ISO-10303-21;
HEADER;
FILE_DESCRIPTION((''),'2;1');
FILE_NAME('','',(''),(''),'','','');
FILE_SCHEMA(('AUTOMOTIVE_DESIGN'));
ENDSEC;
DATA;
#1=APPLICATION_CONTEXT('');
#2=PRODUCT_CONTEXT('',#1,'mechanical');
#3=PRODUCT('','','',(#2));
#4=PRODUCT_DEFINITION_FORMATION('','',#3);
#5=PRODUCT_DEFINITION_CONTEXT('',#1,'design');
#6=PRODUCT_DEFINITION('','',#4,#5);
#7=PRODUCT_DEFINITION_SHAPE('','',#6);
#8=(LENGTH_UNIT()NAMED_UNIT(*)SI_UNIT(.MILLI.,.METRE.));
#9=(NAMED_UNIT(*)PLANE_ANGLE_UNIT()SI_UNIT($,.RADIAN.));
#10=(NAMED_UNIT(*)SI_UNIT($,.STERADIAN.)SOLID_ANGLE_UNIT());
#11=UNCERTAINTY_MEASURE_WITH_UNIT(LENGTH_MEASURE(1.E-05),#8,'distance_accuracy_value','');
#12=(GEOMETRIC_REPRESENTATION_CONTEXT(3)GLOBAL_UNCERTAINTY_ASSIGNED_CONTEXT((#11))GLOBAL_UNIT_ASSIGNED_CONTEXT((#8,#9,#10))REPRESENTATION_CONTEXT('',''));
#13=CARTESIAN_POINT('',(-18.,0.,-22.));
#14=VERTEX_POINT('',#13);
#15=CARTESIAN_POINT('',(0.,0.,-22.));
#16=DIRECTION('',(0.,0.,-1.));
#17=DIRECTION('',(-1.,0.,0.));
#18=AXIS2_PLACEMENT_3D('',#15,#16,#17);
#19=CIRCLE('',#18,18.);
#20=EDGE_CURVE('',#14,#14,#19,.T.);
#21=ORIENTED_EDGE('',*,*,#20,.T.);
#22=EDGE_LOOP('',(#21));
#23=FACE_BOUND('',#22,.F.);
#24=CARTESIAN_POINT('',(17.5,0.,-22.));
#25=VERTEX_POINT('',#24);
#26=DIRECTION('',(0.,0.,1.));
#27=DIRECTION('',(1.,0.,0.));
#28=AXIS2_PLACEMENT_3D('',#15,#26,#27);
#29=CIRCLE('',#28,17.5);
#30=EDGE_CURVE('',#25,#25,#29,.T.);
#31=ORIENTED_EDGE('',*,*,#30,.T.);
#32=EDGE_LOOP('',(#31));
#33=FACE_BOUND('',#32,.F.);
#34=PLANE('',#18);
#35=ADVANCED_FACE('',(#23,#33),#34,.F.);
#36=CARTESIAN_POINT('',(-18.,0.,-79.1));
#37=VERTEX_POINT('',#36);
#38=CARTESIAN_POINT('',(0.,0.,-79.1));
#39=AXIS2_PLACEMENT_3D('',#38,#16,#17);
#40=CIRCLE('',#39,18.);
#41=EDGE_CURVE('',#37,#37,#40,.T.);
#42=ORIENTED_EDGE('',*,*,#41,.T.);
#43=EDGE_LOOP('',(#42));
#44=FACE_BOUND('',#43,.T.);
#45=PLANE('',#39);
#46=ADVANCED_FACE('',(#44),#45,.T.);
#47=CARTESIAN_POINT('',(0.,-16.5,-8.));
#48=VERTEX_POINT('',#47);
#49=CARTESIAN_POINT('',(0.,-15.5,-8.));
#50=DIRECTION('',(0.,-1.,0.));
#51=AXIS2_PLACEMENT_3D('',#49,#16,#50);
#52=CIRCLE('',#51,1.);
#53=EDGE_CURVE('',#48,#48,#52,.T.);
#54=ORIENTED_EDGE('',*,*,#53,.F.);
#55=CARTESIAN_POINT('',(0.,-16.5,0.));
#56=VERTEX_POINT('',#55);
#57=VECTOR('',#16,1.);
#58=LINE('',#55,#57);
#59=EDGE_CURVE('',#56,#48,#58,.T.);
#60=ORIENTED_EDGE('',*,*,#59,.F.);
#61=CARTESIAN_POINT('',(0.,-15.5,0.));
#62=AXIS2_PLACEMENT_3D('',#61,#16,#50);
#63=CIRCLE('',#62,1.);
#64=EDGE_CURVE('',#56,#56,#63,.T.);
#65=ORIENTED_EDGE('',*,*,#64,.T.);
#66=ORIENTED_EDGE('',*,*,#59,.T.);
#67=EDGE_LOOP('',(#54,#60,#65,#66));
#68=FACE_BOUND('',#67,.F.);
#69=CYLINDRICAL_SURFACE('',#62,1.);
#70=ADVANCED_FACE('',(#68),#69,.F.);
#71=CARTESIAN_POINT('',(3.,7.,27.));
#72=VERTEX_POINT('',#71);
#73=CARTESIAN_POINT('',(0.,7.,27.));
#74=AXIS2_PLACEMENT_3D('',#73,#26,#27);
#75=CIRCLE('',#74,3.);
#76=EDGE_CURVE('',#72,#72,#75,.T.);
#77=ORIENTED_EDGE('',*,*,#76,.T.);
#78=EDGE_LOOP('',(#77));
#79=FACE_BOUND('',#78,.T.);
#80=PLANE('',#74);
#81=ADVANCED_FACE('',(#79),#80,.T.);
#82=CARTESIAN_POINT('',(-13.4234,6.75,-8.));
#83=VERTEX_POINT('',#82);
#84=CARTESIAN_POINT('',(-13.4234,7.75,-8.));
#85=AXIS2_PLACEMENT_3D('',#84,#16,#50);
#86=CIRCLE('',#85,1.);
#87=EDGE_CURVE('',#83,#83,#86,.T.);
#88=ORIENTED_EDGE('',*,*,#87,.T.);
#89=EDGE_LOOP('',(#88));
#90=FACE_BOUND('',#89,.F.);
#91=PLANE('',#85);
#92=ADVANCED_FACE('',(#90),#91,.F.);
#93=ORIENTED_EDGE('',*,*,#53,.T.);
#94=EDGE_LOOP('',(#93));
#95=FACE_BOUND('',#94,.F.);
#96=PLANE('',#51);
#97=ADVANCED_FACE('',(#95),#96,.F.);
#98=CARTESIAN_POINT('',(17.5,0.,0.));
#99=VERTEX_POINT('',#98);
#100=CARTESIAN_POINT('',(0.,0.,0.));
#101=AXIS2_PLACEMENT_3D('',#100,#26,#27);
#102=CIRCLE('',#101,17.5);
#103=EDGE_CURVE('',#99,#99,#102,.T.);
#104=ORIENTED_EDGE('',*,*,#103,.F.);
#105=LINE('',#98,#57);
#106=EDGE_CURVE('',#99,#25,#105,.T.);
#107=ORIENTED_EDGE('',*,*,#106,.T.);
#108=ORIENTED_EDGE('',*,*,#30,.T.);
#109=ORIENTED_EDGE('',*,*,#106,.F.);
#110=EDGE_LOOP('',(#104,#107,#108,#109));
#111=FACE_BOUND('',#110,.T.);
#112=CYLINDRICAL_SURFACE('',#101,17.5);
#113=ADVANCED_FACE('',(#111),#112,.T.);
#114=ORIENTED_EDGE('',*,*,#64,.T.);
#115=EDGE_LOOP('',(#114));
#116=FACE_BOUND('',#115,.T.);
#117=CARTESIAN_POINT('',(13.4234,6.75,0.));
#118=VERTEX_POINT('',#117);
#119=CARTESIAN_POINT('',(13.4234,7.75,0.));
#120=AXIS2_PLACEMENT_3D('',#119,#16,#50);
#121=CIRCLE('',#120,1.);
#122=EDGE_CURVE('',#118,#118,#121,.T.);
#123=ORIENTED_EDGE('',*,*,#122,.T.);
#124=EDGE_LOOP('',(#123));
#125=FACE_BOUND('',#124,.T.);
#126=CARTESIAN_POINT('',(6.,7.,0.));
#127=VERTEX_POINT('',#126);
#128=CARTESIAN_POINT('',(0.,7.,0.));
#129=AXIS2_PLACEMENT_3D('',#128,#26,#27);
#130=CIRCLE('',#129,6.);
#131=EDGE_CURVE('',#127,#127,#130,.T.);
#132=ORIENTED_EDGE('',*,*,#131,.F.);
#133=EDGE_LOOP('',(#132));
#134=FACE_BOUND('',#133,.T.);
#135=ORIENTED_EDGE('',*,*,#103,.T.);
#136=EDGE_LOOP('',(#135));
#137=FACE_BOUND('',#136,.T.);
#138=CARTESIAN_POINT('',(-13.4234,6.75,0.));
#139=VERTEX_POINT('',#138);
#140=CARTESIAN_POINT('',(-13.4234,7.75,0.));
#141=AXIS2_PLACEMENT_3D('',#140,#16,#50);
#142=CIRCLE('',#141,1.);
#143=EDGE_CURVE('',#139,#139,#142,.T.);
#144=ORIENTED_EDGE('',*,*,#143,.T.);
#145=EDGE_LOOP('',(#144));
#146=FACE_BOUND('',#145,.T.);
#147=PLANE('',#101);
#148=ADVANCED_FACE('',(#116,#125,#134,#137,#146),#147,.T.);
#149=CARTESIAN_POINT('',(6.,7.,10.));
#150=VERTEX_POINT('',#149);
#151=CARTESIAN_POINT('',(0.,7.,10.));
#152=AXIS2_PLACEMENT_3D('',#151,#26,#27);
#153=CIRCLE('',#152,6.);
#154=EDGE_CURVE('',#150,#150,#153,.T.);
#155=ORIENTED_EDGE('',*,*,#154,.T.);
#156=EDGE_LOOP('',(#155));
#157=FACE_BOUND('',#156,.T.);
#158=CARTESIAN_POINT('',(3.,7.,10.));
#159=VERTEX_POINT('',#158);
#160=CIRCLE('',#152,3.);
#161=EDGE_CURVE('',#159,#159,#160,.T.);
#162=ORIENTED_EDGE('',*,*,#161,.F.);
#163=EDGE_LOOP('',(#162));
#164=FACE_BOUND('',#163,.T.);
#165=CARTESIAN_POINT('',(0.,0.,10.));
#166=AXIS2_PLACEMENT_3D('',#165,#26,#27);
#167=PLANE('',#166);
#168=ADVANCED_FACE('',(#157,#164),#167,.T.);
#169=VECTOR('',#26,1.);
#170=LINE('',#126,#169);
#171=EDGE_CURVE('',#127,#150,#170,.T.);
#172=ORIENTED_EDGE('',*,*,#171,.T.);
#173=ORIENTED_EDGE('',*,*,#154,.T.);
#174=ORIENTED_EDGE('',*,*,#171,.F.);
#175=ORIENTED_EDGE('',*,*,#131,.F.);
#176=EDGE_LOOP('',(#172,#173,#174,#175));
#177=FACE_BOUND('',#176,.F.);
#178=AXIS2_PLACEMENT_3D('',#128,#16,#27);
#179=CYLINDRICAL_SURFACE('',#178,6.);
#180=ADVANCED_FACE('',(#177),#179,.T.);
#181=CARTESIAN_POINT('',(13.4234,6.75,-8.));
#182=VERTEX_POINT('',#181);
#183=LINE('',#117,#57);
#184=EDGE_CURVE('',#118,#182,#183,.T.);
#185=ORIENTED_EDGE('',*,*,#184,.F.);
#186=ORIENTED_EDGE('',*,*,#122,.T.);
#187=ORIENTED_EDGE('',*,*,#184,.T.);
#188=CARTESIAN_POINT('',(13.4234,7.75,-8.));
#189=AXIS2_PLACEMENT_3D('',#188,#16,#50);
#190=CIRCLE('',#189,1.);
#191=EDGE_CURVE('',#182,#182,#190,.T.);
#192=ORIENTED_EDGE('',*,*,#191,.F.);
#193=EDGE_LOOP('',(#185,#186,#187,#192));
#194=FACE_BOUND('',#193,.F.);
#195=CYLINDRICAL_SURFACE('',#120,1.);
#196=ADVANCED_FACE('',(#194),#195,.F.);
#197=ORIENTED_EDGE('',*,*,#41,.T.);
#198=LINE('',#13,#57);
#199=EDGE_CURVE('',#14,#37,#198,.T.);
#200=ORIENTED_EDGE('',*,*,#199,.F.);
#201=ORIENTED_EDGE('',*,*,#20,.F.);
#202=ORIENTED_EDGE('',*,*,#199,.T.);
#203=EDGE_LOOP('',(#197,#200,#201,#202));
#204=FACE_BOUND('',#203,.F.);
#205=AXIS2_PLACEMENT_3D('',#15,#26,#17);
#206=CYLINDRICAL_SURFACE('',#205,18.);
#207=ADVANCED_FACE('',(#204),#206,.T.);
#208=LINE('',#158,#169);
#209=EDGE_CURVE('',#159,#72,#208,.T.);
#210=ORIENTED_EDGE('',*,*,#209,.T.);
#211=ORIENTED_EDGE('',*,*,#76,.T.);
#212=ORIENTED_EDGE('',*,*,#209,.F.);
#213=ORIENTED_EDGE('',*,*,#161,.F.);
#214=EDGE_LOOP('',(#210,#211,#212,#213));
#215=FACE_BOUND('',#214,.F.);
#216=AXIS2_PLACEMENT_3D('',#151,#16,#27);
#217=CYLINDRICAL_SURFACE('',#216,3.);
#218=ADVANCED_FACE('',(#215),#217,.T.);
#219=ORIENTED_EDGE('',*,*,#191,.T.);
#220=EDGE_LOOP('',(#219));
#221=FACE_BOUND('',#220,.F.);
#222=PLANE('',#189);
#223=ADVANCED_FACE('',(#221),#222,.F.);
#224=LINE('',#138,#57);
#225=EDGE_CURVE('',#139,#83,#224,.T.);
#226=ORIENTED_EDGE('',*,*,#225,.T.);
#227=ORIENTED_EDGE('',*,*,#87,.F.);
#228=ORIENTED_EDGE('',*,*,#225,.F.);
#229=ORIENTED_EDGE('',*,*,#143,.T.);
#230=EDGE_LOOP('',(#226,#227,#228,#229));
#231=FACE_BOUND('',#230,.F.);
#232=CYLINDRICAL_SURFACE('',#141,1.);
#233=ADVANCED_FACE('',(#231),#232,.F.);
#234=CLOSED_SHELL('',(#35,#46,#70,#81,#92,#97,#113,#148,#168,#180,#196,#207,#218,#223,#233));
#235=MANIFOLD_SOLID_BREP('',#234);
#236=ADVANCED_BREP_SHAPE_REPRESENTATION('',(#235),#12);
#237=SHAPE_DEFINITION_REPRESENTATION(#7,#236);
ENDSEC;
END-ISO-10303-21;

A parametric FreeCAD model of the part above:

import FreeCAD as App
import Part
import Sketcher
Q = App.Units.Quantity

doc = App.newDocument("Part")
params = doc.addObject("Spreadsheet::Sheet", "Params")
for row, (alias, value) in enumerate([
    ("sketch1_diameter", "35 mm"),
    ("pad1_length", "22 mm"),
    ("sketch2_diameter", "36 mm"),
    ("pad2_length", "57.1 mm"),
    ("sketch3_diameter", "12 mm"),
    ("pad3_length", "10 mm"),
    ("sketch4_diameter", "6 mm"),
    ("pad4_length", "17 mm"),
    ("sketch5_diameter", "2 mm"),
    ("hole_diameter", "2 mm"),
    ("hole_depth", "8 mm"),
], start=1):
    params.set(f"A{row}", alias)
    params.set(f"B{row}", "=" + value)
    params.setAlias(f"B{row}", alias)

body = doc.addObject("PartDesign::Body", "Body")

# Sketch on XY plane
sketch1 = doc.addObject("Sketcher::SketchObject", "Sketch")
body.addObject(sketch1)
sketch1.AttachmentSupport = (doc.XY_Plane, [""])
sketch1.MapMode = "FlatFace"
sketch1.addGeometry(Part.Circle(App.Vector(0, 0, 0), App.Vector(0, 0, 1), 18), False)
sketch1.addConstraint([
    Sketcher.Constraint("Coincident", 0, 3, -1, 1),
    Sketcher.Constraint("Diameter", 0, Q("35 mm")),
])
sketch1.setExpression("Constraints[1]", "Params.sketch1_diameter")
pad1 = doc.addObject("PartDesign::Pad", "Pad")
body.addObject(pad1)
pad1.Profile = sketch1
pad1.setExpression("Length", "Params.pad1_length")
pad1.Reversed = True

# Sketch on XY plane
sketch2 = doc.addObject("Sketcher::SketchObject", "Sketch001")
body.addObject(sketch2)
sketch2.AttachmentSupport = (doc.XY_Plane, [""])
sketch2.MapMode = "FlatFace"
sketch2.AttachmentOffset = App.Placement(App.Vector(0, 0, -22), App.Rotation())
sketch2.addGeometry(Part.Circle(App.Vector(0, 0, 0), App.Vector(0, 0, 1), 18), False)
sketch2.addConstraint([
    Sketcher.Constraint("Coincident", 0, 3, -1, 1),
    Sketcher.Constraint("Diameter", 0, Q("36 mm")),
])
sketch2.setExpression("Constraints[1]", "Params.sketch2_diameter")
pad2 = doc.addObject("PartDesign::Pad", "Pad001")
body.addObject(pad2)
pad2.Profile = sketch2
pad2.setExpression("Length", "Params.pad2_length")
pad2.Reversed = True

# Sketch on XY plane
sketch3 = doc.addObject("Sketcher::SketchObject", "Sketch002")
body.addObject(sketch3)
sketch3.AttachmentSupport = (doc.XY_Plane, [""])
sketch3.MapMode = "FlatFace"
sketch3.addGeometry(Part.Circle(App.Vector(0, 7, 0), App.Vector(0, 0, 1), 6), False)
sketch3.addConstraint([
    Sketcher.Constraint("PointOnObject", 0, 3, -2),
    Sketcher.Constraint("Diameter", 0, Q("12 mm")),
    Sketcher.Constraint("DistanceY", -1, 1, 0, 3, Q("7 mm")),
])
sketch3.setExpression("Constraints[1]", "Params.sketch3_diameter")
pad3 = doc.addObject("PartDesign::Pad", "Pad002")
body.addObject(pad3)
pad3.Profile = sketch3
pad3.setExpression("Length", "Params.pad3_length")

# Sketch on XY plane
sketch4 = doc.addObject("Sketcher::SketchObject", "Sketch003")
body.addObject(sketch4)
sketch4.AttachmentSupport = (doc.XY_Plane, [""])
sketch4.MapMode = "FlatFace"
sketch4.AttachmentOffset = App.Placement(App.Vector(0, 0, 10), App.Rotation())
sketch4.addGeometry(Part.Circle(App.Vector(0, 7, 0), App.Vector(0, 0, 1), 3), False)
sketch4.addConstraint([
    Sketcher.Constraint("PointOnObject", 0, 3, -2),
    Sketcher.Constraint("Diameter", 0, Q("6 mm")),
    Sketcher.Constraint("DistanceY", -1, 1, 0, 3, Q("7 mm")),
])
sketch4.setExpression("Constraints[1]", "Params.sketch4_diameter")
pad4 = doc.addObject("PartDesign::Pad", "Pad003")
body.addObject(pad4)
pad4.Profile = sketch4
pad4.setExpression("Length", "Params.pad4_length")

# Sketch on XY plane
sketch5 = doc.addObject("Sketcher::SketchObject", "Sketch004")
body.addObject(sketch5)
sketch5.AttachmentSupport = (doc.XY_Plane, [""])
sketch5.MapMode = "FlatFace"
sketch5.addGeometry([
    Part.Circle(App.Vector(-13.4, 7.8, 0), App.Vector(0, 0, 1), 1),
    Part.Circle(App.Vector(13.4, 7.8, 0), App.Vector(0, 0, 1), 1),
    Part.Circle(App.Vector(0, -15.5, 0), App.Vector(0, 0, 1), 1),
], False)
sketch5.addConstraint([
    Sketcher.Constraint("Equal", 0, 1),
    Sketcher.Constraint("Equal", 1, 2),
    Sketcher.Constraint("Symmetric", 0, 3, 1, 3, -2),
    Sketcher.Constraint("PointOnObject", 2, 3, -2),
    Sketcher.Constraint("Diameter", 0, Q("2 mm")),
    Sketcher.Constraint("DistanceY", 2, 3, -1, 1, Q("15.5 mm")),
    Sketcher.Constraint("DistanceY", -1, 1, 0, 3, Q("7.75 mm")),
    Sketcher.Constraint("DistanceX", 0, 3, -1, 1, Q("13.4234 mm")),
])
sketch5.setExpression("Constraints[4]", "Params.sketch5_diameter")
doc.recompute()
hole = doc.addObject("PartDesign::Hole", "Hole")
body.addObject(hole)
hole.Profile = sketch5
hole.ThreadType = "None"
hole.setExpression("Diameter", "Params.hole_diameter")
hole.DepthType = "Dimension"
hole.setExpression("Depth", "Params.hole_depth")
hole.DrillPoint = "Flat"

doc.recompute()
